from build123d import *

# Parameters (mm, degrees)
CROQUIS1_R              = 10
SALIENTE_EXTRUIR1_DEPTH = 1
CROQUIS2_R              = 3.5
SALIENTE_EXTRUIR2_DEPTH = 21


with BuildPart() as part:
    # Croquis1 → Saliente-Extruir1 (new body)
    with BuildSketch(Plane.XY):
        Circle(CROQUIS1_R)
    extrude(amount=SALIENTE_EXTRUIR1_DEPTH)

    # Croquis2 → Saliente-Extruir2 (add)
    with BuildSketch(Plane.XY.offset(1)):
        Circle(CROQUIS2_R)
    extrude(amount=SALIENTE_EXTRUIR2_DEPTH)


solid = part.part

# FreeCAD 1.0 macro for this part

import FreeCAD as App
import Part
import Sketcher
Q = App.Units.Quantity

doc = App.newDocument("Part")
body = doc.addObject("PartDesign::Body", "Body")

# Sketch on XY plane
sketch1 = body.newObject("Sketcher::SketchObject", "Sketch")
sketch1.AttachmentSupport = (doc.getObject("XY_Plane"), [""])
sketch1.MapMode = "FlatFace"
sketch1.addGeometry(Part.Circle(App.Vector(0, 0, 0), App.Vector(0, 0, 1), 10), False)
sketch1.addConstraint(Sketcher.Constraint("Coincident", 0, 3, -1, 1))
sketch1.addConstraint(Sketcher.Constraint("Diameter", 0, Q("20 mm")))
pad1 = body.newObject("PartDesign::Pad", "Pad")
pad1.Profile = sketch1
pad1.Length = 1

# Sketch on XY plane
sketch2 = body.newObject("Sketcher::SketchObject", "Sketch001")
sketch2.AttachmentSupport = (doc.getObject("XY_Plane"), [""])
sketch2.MapMode = "FlatFace"
sketch2.AttachmentOffset = App.Placement(App.Vector(0, 0, 1), App.Rotation())
sketch2.addGeometry(Part.Circle(App.Vector(0, 0, 0), App.Vector(0, 0, 1), 3.5), False)
sketch2.addConstraint(Sketcher.Constraint("Coincident", 0, 3, -1, 1))
sketch2.addConstraint(Sketcher.Constraint("Diameter", 0, Q("7 mm")))
pad2 = body.newObject("PartDesign::Pad", "Pad001")
pad2.Profile = sketch2
pad2.Length = 21

doc.recompute()
